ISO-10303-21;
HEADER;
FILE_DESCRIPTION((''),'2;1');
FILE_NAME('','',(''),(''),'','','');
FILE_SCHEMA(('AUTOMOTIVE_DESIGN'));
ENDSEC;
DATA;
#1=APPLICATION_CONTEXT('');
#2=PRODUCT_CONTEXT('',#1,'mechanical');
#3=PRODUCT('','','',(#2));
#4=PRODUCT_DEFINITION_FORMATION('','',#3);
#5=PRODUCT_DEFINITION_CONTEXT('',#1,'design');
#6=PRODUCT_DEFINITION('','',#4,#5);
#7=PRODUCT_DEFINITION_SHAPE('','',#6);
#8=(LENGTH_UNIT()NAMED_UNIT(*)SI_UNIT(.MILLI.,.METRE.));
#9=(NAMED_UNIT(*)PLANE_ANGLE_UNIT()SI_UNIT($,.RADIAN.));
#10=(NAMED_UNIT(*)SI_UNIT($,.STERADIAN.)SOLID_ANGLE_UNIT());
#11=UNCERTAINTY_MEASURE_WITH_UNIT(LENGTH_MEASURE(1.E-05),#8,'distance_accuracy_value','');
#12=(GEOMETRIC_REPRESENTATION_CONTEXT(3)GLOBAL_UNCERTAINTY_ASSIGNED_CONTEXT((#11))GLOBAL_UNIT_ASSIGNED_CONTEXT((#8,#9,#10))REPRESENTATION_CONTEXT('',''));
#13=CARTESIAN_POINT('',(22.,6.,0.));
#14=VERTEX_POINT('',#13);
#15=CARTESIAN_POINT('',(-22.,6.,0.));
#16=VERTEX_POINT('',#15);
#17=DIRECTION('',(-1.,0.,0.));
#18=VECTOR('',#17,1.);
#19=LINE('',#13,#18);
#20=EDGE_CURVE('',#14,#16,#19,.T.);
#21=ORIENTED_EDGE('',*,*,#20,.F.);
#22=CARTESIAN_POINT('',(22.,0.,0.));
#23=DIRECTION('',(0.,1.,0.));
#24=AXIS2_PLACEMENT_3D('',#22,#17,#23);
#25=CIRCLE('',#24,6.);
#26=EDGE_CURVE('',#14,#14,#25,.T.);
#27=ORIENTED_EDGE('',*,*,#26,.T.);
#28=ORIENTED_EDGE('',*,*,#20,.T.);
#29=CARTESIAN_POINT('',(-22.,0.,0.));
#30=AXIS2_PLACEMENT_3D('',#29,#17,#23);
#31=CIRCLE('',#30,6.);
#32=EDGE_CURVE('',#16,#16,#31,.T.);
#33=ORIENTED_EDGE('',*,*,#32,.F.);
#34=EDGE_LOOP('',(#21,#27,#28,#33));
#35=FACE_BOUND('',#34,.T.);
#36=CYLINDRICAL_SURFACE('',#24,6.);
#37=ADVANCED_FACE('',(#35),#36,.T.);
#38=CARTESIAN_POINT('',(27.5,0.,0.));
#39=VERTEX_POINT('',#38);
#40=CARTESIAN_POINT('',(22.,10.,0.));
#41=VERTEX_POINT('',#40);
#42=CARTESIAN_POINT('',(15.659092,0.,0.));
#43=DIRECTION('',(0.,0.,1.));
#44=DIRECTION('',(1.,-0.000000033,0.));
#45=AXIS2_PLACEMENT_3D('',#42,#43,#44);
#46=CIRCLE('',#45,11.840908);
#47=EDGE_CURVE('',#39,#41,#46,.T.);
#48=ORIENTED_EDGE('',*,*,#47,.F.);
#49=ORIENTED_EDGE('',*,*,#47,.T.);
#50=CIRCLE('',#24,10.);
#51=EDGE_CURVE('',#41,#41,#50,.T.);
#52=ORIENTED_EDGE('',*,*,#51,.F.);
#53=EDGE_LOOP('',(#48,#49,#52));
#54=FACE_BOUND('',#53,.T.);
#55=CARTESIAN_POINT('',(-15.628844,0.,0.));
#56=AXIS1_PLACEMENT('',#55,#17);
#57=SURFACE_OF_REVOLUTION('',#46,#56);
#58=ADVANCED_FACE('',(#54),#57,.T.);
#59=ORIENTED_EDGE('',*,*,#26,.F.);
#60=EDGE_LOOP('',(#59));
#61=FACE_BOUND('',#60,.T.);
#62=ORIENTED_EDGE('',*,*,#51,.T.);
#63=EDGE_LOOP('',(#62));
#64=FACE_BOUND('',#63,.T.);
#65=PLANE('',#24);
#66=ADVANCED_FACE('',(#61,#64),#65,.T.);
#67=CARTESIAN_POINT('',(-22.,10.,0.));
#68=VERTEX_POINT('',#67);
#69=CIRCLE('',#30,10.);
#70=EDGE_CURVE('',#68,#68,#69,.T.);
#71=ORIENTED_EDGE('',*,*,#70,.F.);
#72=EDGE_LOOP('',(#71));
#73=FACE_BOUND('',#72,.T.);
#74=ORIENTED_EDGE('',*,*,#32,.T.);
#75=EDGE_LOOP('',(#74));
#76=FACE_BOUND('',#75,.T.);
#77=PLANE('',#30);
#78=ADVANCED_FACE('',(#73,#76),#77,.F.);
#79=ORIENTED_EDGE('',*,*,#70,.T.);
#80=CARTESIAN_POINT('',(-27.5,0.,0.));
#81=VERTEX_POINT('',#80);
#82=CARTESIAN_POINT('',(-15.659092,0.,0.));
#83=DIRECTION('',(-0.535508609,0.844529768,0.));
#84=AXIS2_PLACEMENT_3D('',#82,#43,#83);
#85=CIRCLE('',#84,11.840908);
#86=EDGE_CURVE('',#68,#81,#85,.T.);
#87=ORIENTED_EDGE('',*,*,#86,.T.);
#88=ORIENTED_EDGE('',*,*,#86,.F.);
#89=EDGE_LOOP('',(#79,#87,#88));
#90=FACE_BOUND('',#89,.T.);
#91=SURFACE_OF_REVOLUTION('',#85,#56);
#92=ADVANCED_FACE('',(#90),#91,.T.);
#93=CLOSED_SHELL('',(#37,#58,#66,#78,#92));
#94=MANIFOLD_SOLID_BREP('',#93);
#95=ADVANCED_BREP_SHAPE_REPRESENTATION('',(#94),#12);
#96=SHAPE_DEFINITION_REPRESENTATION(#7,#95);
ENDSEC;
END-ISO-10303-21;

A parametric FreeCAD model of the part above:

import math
import FreeCAD as App
import Part
import Sketcher
from FreeCAD import Vector

doc = App.newDocument("Part")
body = doc.addObject("PartDesign::Body", "Body")

# Sketch on XY plane
sketch1 = body.newObject("Sketcher::SketchObject", "Sketch")
sketch1.AttachmentSupport = (doc.getObject("XY_Plane"), [""])
sketch1.MapMode = "FlatFace"
sketch1.addGeometry(Part.LineSegment(Vector(22, 6, 0), Vector(-22, 6, 0)), False)
sketch1.addGeometry(Part.LineSegment(Vector(-22, 6, 0), Vector(-22, 10, 0)), False)
sketch1.addGeometry(Part.ArcOfCircle(Part.Circle(Vector(-15.7, 0, 0), Vector(0, 0, 1), 11.8), math.radians(122), math.radians(180)), False)
sketch1.addGeometry(Part.LineSegment(Vector(-27.5, 0, 0), Vector(27.5, 0, 0)), False)
sketch1.addGeometry(Part.ArcOfCircle(Part.Circle(Vector(15.7, 0, 0), Vector(0, 0, 1), 11.8), math.radians(0), math.radians(58)), False)
sketch1.addGeometry(Part.LineSegment(Vector(22, 10, 0), Vector(22, 6, 0)), False)
sketch1.addConstraint(Sketcher.Constraint("Coincident", 0, 2, 1, 1))
sketch1.addConstraint(Sketcher.Constraint("Coincident", 1, 2, 2, 1))
sketch1.addConstraint(Sketcher.Constraint("Coincident", 2, 2, 3, 1))
sketch1.addConstraint(Sketcher.Constraint("Coincident", 3, 2, 4, 1))
sketch1.addConstraint(Sketcher.Constraint("Coincident", 4, 2, 5, 1))
sketch1.addConstraint(Sketcher.Constraint("Coincident", 5, 2, 0, 1))
sketch1.addConstraint(Sketcher.Constraint("Horizontal", 0))
sketch1.addConstraint(Sketcher.Constraint("Vertical", 1))
sketch1.addConstraint(Sketcher.Constraint("Horizontal", 3))
sketch1.addConstraint(Sketcher.Constraint("Vertical", 5))
sketch1.addConstraint(Sketcher.Constraint("Equal", 2, 4))
sketch1.addConstraint(Sketcher.Constraint("Symmetric", 2, 3, 4, 3, -1, 1))
sketch1.addConstraint(Sketcher.Constraint("Symmetric", 1, 2, 4, 2, -2))
sketch1.addConstraint(Sketcher.Constraint("PointOnObject", 2, 2, -1))
sketch1.addConstraint(Sketcher.Constraint("DistanceX", 0, 2, 0, 1, 44.0))
sketch1.addConstraint(Sketcher.Constraint("DistanceX", 3, 1, 3, 2, 55.0))
sketch1.addConstraint(Sketcher.Constraint("DistanceY", 1, 1, 1, 2, 4.0))
sketch1.addConstraint(Sketcher.Constraint("DistanceY", -1, 1, 0, 2, 6.0))
revolution = body.newObject("PartDesign::Revolution", "Revolution")
revolution.Profile = sketch1
revolution.ReferenceAxis = (sketch1, ["H_Axis"])
revolution.Angle = 360

doc.recompute()
